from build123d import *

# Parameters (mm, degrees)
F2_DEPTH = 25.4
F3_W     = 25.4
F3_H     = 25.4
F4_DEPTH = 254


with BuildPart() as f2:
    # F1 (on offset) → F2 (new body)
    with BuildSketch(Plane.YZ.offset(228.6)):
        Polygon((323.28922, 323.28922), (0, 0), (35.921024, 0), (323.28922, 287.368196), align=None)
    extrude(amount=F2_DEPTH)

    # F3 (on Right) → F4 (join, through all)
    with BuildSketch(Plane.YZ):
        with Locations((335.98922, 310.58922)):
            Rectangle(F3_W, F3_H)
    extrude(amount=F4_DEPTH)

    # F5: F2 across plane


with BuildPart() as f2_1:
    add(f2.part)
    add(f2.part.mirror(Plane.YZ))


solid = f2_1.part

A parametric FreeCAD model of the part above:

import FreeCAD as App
import Part
import Sketcher

V = App.Vector
Q = App.Units.Quantity

doc = App.newDocument("Part")
body = doc.addObject("PartDesign::Body", "Body")

sketch1 = body.newObject("Sketcher::SketchObject", "Sketch")
sketch1.AttachmentSupport = (doc.getObject("YZ_Plane"), [""])
sketch1.MapMode = "FlatFace"
sketch1.AttachmentOffset = App.Placement(V(0, 0, 9 * 25.4), App.Rotation())
sketch1.addGeometry(Part.LineSegment(V(323, 323, 0), V(0, 0, 0)), False)
sketch1.addGeometry(Part.LineSegment(V(0, 0, 0), V(36, 0, 0)), False)
sketch1.addGeometry(Part.LineSegment(V(36, 0, 0), V(323, 287, 0)), False)
sketch1.addGeometry(Part.LineSegment(V(323, 287, 0), V(323, 323, 0)), False)
sketch1.addConstraint(Sketcher.Constraint("Coincident", 0, 2, 1, 1))
sketch1.addConstraint(Sketcher.Constraint("Coincident", 1, 2, 2, 1))
sketch1.addConstraint(Sketcher.Constraint("Coincident", 2, 2, 3, 1))
sketch1.addConstraint(Sketcher.Constraint("Coincident", 3, 2, 0, 1))
sketch1.addConstraint(Sketcher.Constraint("Horizontal", 1))
sketch1.addConstraint(Sketcher.Constraint("Vertical", 3))
sketch1.addConstraint(Sketcher.Constraint("Coincident", 0, 2, -1, 1))
sketch1.addConstraint(Sketcher.Constraint("Parallel", 0, 2))
sketch1.addConstraint(Sketcher.Constraint("Equal", 1, 3))
sketch1.addConstraint(Sketcher.Constraint("Distance", 0, Q("18 in")))
sketch1.addConstraint(Sketcher.Constraint("Distance", 2, Q("16 in")))
pad1 = body.newObject("PartDesign::Pad", "Pad")
pad1.Profile = sketch1
pad1.Length = Q("1 in")

sketch2 = body.newObject("Sketcher::SketchObject", "Sketch001")
sketch2.AttachmentSupport = (doc.getObject("YZ_Plane"), [""])
sketch2.MapMode = "FlatFace"
sketch2.addGeometry(Part.LineSegment(V(323, 323, 0), V(323, 298, 0)), False)
sketch2.addGeometry(Part.LineSegment(V(323, 298, 0), V(349, 298, 0)), False)
sketch2.addGeometry(Part.LineSegment(V(349, 298, 0), V(349, 323, 0)), False)
sketch2.addGeometry(Part.LineSegment(V(349, 323, 0), V(323, 323, 0)), False)
sketch2.addConstraint(Sketcher.Constraint("Coincident", 0, 2, 1, 1))
sketch2.addConstraint(Sketcher.Constraint("Coincident", 1, 2, 2, 1))
sketch2.addConstraint(Sketcher.Constraint("Coincident", 2, 2, 3, 1))
sketch2.addConstraint(Sketcher.Constraint("Coincident", 3, 2, 0, 1))
sketch2.addConstraint(Sketcher.Constraint("Vertical", 0))
sketch2.addConstraint(Sketcher.Constraint("Horizontal", 1))
sketch2.addConstraint(Sketcher.Constraint("Vertical", 2))
sketch2.addConstraint(Sketcher.Constraint("Horizontal", 3))
sketch2.addConstraint(Sketcher.Constraint("Equal", 3, 0))
sketch2.addConstraint(Sketcher.Constraint("DistanceX", 1, 1, 1, 2, Q("1 in")))
sketch2.addConstraint(Sketcher.Constraint("DistanceX", -1, 1, 0, 2, 323.28922))
sketch2.addConstraint(Sketcher.Constraint("DistanceY", -1, 1, 0, 2, 297.88922))
pad2 = body.newObject("PartDesign::Pad", "Pad001")
pad2.Profile = sketch2
pad2.Length = Q("10 in")
body2 = doc.addObject("PartDesign::Body", "Body001")
doc.recompute()

body2.BaseFeature = body
doc.recompute()

mirroring = doc.addObject("Part::Mirroring", "Mirroring")
mirroring.Source = body
mirroring.Base = V(0, 0, 0)
mirroring.Normal = V(1, 0, 0)
body3 = doc.addObject("PartDesign::Body", "Body002")
body3.BaseFeature = mirroring
boolean = body2.newObject("PartDesign::Boolean", "Boolean")
boolean.Type = "Fuse"
boolean.addObjects([body3])
doc.recompute()
mirroring.Visibility = False

doc.recompute()
